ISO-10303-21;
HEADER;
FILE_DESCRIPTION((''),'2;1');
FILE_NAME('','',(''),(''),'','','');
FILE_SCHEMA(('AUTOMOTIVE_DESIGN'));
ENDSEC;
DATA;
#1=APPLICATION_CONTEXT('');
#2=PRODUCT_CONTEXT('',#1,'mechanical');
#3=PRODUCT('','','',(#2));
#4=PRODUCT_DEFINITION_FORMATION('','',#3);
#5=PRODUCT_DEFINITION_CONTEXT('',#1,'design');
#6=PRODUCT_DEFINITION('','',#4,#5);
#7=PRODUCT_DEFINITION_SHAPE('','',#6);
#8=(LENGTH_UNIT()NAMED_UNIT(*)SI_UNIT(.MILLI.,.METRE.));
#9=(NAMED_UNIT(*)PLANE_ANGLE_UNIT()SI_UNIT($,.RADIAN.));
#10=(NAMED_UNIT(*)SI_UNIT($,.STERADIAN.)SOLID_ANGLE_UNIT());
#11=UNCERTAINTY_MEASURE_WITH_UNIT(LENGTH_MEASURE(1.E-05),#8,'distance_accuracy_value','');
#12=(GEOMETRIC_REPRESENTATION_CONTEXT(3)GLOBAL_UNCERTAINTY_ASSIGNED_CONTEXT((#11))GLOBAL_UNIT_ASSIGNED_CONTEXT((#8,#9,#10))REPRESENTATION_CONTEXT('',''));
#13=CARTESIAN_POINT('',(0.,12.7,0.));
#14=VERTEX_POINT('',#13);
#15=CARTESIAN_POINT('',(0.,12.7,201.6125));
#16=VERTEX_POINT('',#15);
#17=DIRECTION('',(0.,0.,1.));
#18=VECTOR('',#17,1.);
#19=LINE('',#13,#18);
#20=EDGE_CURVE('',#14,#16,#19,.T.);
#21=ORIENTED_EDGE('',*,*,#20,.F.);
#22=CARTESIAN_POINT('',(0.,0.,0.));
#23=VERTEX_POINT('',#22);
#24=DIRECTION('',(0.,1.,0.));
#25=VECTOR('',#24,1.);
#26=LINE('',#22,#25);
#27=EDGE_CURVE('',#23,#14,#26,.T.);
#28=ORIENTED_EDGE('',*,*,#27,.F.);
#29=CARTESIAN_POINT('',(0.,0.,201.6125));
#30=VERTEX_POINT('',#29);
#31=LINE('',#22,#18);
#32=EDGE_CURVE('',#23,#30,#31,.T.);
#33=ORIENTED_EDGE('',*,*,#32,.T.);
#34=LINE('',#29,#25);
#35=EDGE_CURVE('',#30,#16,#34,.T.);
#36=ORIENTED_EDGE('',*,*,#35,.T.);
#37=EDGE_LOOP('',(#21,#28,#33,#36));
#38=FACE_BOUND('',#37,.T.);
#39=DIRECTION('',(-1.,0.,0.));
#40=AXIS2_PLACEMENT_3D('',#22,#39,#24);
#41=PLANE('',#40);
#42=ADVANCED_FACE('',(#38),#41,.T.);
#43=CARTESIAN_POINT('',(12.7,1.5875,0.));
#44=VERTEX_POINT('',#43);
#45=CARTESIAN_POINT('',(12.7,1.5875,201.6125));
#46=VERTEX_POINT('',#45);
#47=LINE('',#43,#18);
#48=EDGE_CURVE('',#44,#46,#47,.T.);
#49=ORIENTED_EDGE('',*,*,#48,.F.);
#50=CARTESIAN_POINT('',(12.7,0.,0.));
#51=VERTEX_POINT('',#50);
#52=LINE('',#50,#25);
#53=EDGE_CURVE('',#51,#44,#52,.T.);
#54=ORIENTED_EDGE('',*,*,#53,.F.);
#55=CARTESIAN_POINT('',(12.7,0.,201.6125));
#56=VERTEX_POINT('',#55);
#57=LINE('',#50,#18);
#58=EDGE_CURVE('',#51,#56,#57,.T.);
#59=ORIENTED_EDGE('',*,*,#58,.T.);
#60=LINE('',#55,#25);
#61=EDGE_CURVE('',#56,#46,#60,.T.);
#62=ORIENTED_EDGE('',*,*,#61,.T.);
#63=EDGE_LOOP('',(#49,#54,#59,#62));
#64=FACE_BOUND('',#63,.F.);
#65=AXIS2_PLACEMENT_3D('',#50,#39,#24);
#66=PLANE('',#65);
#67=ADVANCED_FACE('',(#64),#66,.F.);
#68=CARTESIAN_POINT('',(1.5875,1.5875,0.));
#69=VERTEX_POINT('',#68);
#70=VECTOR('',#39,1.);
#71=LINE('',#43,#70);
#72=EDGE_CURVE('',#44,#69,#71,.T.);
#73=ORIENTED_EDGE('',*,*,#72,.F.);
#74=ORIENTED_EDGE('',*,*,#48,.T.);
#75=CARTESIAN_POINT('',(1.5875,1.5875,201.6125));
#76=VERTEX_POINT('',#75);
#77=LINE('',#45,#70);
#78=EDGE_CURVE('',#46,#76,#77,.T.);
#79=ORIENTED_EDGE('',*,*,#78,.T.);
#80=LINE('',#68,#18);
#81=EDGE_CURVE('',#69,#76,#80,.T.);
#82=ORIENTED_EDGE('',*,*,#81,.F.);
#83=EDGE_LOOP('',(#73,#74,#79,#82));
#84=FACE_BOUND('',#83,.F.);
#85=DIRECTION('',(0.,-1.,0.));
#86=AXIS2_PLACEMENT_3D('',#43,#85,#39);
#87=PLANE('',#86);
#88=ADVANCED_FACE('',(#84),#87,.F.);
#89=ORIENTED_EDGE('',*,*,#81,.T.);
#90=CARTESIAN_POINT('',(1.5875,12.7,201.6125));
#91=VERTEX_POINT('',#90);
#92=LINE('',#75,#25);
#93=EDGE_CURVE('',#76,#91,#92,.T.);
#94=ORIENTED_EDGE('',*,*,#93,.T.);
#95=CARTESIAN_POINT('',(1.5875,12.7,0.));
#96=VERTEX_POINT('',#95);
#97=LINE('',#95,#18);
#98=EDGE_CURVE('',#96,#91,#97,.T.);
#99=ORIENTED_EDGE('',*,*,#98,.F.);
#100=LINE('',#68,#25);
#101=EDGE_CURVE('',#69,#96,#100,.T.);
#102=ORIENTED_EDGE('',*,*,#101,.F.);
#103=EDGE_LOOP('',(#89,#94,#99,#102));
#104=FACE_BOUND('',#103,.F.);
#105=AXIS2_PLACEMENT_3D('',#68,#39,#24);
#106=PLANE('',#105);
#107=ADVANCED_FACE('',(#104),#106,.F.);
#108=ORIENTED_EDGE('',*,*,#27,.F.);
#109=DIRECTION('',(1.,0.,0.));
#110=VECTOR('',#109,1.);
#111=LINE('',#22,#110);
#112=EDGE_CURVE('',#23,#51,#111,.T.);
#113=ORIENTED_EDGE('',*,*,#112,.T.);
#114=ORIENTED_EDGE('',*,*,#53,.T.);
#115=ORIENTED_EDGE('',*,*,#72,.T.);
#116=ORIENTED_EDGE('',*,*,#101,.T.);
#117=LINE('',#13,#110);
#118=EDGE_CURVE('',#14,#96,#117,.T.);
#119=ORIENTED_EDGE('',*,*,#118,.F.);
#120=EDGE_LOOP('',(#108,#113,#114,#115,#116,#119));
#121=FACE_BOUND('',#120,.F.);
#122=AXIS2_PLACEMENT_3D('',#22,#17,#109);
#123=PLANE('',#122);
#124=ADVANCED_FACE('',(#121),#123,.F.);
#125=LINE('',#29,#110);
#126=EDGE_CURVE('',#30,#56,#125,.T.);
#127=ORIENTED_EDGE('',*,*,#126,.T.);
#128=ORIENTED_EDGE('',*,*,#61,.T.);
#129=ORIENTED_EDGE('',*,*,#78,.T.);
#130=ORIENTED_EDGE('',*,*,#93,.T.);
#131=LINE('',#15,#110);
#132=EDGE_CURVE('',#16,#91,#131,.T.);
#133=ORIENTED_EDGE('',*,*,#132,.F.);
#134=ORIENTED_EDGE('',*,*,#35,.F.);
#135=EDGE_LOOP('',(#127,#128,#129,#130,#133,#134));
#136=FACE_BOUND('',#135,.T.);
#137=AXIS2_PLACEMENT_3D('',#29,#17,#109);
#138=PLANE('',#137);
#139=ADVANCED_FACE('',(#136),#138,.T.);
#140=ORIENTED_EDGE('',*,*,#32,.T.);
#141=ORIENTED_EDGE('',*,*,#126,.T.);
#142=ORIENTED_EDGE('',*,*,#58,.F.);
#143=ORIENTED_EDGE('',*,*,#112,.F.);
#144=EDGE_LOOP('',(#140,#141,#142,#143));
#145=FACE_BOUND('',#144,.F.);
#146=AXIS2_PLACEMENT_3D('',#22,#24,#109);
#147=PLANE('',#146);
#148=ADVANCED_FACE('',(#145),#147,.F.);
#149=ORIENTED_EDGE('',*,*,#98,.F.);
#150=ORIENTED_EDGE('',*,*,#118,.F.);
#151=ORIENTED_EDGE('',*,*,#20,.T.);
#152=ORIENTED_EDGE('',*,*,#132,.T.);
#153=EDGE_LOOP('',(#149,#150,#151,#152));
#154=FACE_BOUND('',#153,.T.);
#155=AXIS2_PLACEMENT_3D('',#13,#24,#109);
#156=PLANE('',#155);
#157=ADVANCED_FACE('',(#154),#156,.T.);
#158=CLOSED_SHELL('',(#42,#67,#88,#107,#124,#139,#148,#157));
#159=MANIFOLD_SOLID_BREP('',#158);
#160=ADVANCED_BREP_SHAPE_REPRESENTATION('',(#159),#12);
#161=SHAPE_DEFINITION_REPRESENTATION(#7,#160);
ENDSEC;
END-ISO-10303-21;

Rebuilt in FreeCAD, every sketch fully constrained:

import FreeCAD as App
import Part
import Sketcher
Q = App.Units.Quantity

doc = App.newDocument("Part")
params = doc.addObject("Spreadsheet::Sheet", "Params")
for row, (alias, value) in enumerate([
    ("sketch1_width", "0.5 in"),
    ("sketch1_width2", "0.0625 in"),
    ("pad1_length", "7.9375 in"),
], start=1):
    params.set(f"A{row}", alias)
    params.set(f"B{row}", "=" + value)
    params.setAlias(f"B{row}", alias)

body = doc.addObject("PartDesign::Body", "Body")

sketch1 = body.newObject("Sketcher::SketchObject", "Sketch")
sketch1.AttachmentSupport = (doc.getObject("XY_Plane"), [""])
sketch1.MapMode = "FlatFace"
sketch1.addGeometry([
    Part.LineSegment(App.Vector(0, 12.7, 0), App.Vector(0, 0, 0)),
    Part.LineSegment(App.Vector(0, 0, 0), App.Vector(12.7, 0, 0)),
    Part.LineSegment(App.Vector(12.7, 0, 0), App.Vector(12.7, 1.5875, 0)),
    Part.LineSegment(App.Vector(12.7, 1.5875, 0), App.Vector(1.5875, 1.5875, 0)),
    Part.LineSegment(App.Vector(1.5875, 1.5875, 0), App.Vector(1.5875, 12.7, 0)),
    Part.LineSegment(App.Vector(1.5875, 12.7, 0), App.Vector(0, 12.7, 0)),
], False)
sketch1.addConstraint([
    Sketcher.Constraint("Coincident", 0, 2, 1, 1),
    Sketcher.Constraint("Coincident", 1, 2, 2, 1),
    Sketcher.Constraint("Coincident", 2, 2, 3, 1),
    Sketcher.Constraint("Coincident", 3, 2, 4, 1),
    Sketcher.Constraint("Coincident", 4, 2, 5, 1),
    Sketcher.Constraint("Coincident", 5, 2, 0, 1),
    Sketcher.Constraint("Vertical", 0),
    Sketcher.Constraint("Horizontal", 1),
    Sketcher.Constraint("Vertical", 2),
    Sketcher.Constraint("Horizontal", 3),
    Sketcher.Constraint("Vertical", 4),
    Sketcher.Constraint("Horizontal", 5),
    Sketcher.Constraint("Coincident", 0, 2, -1, 1),
    Sketcher.Constraint("Equal", 1, 0),
    Sketcher.Constraint("Equal", 5, 2),
    Sketcher.Constraint("DistanceX", 1, 1, 1, 2, Q("0.5 in")),
    Sketcher.Constraint("DistanceX", 5, 2, 5, 1, Q("0.0625 in")),
])
sketch1.setExpression("Constraints[15]", "Params.sketch1_width")
sketch1.setExpression("Constraints[16]", "Params.sketch1_width2")
pad1 = body.newObject("PartDesign::Pad", "Pad")
pad1.Profile = sketch1
pad1.setExpression("Length", "Params.pad1_length")

doc.recompute()
